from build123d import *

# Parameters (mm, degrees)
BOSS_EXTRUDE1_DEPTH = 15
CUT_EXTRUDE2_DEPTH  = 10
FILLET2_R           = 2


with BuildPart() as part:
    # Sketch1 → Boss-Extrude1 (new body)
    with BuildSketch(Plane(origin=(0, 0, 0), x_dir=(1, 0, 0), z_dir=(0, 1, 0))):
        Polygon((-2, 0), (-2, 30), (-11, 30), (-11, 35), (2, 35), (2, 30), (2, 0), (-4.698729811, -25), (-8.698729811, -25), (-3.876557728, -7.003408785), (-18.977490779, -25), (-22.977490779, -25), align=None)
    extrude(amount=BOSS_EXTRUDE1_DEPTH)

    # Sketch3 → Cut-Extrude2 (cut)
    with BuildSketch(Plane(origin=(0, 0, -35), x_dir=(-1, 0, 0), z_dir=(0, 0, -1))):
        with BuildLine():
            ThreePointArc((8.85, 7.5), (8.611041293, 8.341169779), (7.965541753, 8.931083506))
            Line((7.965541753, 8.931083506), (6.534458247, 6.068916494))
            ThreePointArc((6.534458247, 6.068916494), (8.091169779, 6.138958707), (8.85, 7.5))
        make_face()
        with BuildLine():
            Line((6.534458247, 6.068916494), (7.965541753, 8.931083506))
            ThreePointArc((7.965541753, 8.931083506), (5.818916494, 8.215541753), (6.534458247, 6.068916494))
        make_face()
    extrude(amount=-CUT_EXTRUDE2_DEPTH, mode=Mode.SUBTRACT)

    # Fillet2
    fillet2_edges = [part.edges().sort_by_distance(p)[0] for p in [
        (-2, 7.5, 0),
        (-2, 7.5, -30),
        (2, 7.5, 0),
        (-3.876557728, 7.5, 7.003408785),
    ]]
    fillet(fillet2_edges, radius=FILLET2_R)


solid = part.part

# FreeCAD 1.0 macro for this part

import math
import FreeCAD as App
import Part
import Sketcher

V = App.Vector
Q = App.Units.Quantity


def edges_at(feature, points):
    """Names of the edges that pass closest to the given points."""
    edges = feature.Shape.Edges
    near = lambda p: min(range(len(edges)), key=lambda i: edges[i].distToShape(Part.Vertex(*p))[0])
    return sorted({f"Edge{near(p) + 1}" for p in points})


def add_polygon(sketch, points):
    """Adds a closed chain of lines whose ends are joined by coincident constraints."""
    first, n = sketch.GeometryCount, len(points)
    for a, b in zip(points, points[1:] + points[:1]):
        sketch.addGeometry(Part.LineSegment(App.Vector(*a, 0), App.Vector(*b, 0)), False)
    for i in range(n):
        sketch.addConstraint(Sketcher.Constraint("Coincident", first + i, 2, first + (i + 1) % n, 1))

doc = App.newDocument("Part")
body = doc.addObject("PartDesign::Body", "Body")

sketch1 = body.newObject("Sketcher::SketchObject", "Sketch")
sketch1.AttachmentSupport = (doc.getObject("XZ_Plane"), [""])
sketch1.MapMode = "FlatFace"
add_polygon(sketch1, [(-2, -30), (-2, 0), (-22.977491, 25), (-18.977491, 25), (-3.876558, 7.003409), (-8.69873, 25), (-4.69873, 25), (2, 0), (2, -35), (-11, -35), (-11, -30)])
sketch1.addConstraint(Sketcher.Constraint("Vertical", 0))
sketch1.addConstraint(Sketcher.Constraint("Horizontal", 2))
sketch1.addConstraint(Sketcher.Constraint("Horizontal", 5))
sketch1.addConstraint(Sketcher.Constraint("Vertical", 7))
sketch1.addConstraint(Sketcher.Constraint("Horizontal", 8))
sketch1.addConstraint(Sketcher.Constraint("Vertical", 9))
sketch1.addConstraint(Sketcher.Constraint("Horizontal", 10))
sketch1.addConstraint(Sketcher.Constraint("Symmetric", 0, 2, 6, 2, -1, 1))
sketch1.addConstraint(Sketcher.Constraint("PointOnObject", 0, 2, -1))
sketch1.addConstraint(Sketcher.Constraint("Parallel", 1, 3))
sketch1.addConstraint(Sketcher.Constraint("Parallel", 4, 6))
sketch1.addConstraint(Sketcher.Constraint("Horizontal", 2, 2, 4, 2))
sketch1.addConstraint(Sketcher.Constraint("Equal", 2, 5))
sketch1.addConstraint(Sketcher.Constraint("DistanceX", 2, 1, 2, 2, 4.0))
sketch1.addConstraint(Sketcher.Constraint("DistanceX", 8, 2, 8, 1, 13.0))
sketch1.addConstraint(Sketcher.Constraint("DistanceX", 10, 1, 10, 2, 9.0))
sketch1.addConstraint(Sketcher.Constraint("DistanceY", 0, 1, 0, 2, 30.0))
sketch1.addConstraint(Sketcher.Constraint("DistanceY", 7, 2, 7, 1, 35.0))
sketch1.addConstraint(Sketcher.Constraint("Angle", 1, Q("130 deg")))
sketch1.addConstraint(Sketcher.Constraint("Angle", 4, Q("105 deg")))
sketch1.addConstraint(Sketcher.Constraint("DistanceY", -1, 1, 1, 2, 25.0))
pad1 = body.newObject("PartDesign::Pad", "Pad")
pad1.Profile = sketch1
pad1.Length = 15
pad1.Reversed = True

sketch2 = body.newObject("Sketcher::SketchObject", "Sketch001")
sketch2.AttachmentSupport = (doc.getObject("XY_Plane"), [""])
sketch2.MapMode = "FlatFace"
sketch2.AttachmentOffset = App.Placement(V(0, 0, -35), App.Rotation())
sketch2.addGeometry(Part.ArcOfCircle(Part.Circle(V(-7.25, 7.5, 0), V(0, 0, 1), 1.6), math.radians(116.565051), math.radians(180)), False)
sketch2.addGeometry(Part.ArcOfCircle(Part.Circle(V(-7.25, 7.5, 0), V(0, 0, 1), 1.6), math.radians(-63.434949), math.radians(116.565051)), False)
sketch2.addGeometry(Part.ArcOfCircle(Part.Circle(V(-7.25, 7.5, 0), V(0, 0, 1), 1.6), math.radians(-180), math.radians(-63.434949)), False)
sketch2.addConstraint(Sketcher.Constraint("Tangent", 0, 1, 1, 2))
sketch2.addConstraint(Sketcher.Constraint("Tangent", 1, 1, 2, 2))
sketch2.addConstraint(Sketcher.Constraint("Tangent", 2, 1, 0, 2))
sketch2.addConstraint(Sketcher.Constraint("Horizontal", 1, 3, 2, 1))
sketch2.addConstraint(Sketcher.Constraint("Radius", 0, 1.6))
sketch2.addConstraint(Sketcher.Constraint("DistanceY", -1, 1, 0, 3, 7.5))
sketch2.addConstraint(Sketcher.Constraint("DistanceX", 0, 3, -1, 1, 7.25))
sketch2.addConstraint(Sketcher.Constraint("DistanceX", 0, 1, -1, 1, 7.965542))
sketch2.addConstraint(Sketcher.Constraint("DistanceX", 1, 1, -1, 1, 6.534458))
pocket1 = body.newObject("PartDesign::Pocket", "Pocket")
pocket1.Profile = sketch2
pocket1.Length = 10
pocket1.Reversed = True
doc.recompute()

fillet = body.newObject("PartDesign::Fillet", "Fillet")
fillet.Base = (pocket1, edges_at(pocket1, [
    (-2, 7.5, 0),
    (-2, 7.5, -30),
    (2, 7.5, 0),
    (-3.877, 7.5, 7.003),
]))
fillet.Radius = 2

doc.recompute()
